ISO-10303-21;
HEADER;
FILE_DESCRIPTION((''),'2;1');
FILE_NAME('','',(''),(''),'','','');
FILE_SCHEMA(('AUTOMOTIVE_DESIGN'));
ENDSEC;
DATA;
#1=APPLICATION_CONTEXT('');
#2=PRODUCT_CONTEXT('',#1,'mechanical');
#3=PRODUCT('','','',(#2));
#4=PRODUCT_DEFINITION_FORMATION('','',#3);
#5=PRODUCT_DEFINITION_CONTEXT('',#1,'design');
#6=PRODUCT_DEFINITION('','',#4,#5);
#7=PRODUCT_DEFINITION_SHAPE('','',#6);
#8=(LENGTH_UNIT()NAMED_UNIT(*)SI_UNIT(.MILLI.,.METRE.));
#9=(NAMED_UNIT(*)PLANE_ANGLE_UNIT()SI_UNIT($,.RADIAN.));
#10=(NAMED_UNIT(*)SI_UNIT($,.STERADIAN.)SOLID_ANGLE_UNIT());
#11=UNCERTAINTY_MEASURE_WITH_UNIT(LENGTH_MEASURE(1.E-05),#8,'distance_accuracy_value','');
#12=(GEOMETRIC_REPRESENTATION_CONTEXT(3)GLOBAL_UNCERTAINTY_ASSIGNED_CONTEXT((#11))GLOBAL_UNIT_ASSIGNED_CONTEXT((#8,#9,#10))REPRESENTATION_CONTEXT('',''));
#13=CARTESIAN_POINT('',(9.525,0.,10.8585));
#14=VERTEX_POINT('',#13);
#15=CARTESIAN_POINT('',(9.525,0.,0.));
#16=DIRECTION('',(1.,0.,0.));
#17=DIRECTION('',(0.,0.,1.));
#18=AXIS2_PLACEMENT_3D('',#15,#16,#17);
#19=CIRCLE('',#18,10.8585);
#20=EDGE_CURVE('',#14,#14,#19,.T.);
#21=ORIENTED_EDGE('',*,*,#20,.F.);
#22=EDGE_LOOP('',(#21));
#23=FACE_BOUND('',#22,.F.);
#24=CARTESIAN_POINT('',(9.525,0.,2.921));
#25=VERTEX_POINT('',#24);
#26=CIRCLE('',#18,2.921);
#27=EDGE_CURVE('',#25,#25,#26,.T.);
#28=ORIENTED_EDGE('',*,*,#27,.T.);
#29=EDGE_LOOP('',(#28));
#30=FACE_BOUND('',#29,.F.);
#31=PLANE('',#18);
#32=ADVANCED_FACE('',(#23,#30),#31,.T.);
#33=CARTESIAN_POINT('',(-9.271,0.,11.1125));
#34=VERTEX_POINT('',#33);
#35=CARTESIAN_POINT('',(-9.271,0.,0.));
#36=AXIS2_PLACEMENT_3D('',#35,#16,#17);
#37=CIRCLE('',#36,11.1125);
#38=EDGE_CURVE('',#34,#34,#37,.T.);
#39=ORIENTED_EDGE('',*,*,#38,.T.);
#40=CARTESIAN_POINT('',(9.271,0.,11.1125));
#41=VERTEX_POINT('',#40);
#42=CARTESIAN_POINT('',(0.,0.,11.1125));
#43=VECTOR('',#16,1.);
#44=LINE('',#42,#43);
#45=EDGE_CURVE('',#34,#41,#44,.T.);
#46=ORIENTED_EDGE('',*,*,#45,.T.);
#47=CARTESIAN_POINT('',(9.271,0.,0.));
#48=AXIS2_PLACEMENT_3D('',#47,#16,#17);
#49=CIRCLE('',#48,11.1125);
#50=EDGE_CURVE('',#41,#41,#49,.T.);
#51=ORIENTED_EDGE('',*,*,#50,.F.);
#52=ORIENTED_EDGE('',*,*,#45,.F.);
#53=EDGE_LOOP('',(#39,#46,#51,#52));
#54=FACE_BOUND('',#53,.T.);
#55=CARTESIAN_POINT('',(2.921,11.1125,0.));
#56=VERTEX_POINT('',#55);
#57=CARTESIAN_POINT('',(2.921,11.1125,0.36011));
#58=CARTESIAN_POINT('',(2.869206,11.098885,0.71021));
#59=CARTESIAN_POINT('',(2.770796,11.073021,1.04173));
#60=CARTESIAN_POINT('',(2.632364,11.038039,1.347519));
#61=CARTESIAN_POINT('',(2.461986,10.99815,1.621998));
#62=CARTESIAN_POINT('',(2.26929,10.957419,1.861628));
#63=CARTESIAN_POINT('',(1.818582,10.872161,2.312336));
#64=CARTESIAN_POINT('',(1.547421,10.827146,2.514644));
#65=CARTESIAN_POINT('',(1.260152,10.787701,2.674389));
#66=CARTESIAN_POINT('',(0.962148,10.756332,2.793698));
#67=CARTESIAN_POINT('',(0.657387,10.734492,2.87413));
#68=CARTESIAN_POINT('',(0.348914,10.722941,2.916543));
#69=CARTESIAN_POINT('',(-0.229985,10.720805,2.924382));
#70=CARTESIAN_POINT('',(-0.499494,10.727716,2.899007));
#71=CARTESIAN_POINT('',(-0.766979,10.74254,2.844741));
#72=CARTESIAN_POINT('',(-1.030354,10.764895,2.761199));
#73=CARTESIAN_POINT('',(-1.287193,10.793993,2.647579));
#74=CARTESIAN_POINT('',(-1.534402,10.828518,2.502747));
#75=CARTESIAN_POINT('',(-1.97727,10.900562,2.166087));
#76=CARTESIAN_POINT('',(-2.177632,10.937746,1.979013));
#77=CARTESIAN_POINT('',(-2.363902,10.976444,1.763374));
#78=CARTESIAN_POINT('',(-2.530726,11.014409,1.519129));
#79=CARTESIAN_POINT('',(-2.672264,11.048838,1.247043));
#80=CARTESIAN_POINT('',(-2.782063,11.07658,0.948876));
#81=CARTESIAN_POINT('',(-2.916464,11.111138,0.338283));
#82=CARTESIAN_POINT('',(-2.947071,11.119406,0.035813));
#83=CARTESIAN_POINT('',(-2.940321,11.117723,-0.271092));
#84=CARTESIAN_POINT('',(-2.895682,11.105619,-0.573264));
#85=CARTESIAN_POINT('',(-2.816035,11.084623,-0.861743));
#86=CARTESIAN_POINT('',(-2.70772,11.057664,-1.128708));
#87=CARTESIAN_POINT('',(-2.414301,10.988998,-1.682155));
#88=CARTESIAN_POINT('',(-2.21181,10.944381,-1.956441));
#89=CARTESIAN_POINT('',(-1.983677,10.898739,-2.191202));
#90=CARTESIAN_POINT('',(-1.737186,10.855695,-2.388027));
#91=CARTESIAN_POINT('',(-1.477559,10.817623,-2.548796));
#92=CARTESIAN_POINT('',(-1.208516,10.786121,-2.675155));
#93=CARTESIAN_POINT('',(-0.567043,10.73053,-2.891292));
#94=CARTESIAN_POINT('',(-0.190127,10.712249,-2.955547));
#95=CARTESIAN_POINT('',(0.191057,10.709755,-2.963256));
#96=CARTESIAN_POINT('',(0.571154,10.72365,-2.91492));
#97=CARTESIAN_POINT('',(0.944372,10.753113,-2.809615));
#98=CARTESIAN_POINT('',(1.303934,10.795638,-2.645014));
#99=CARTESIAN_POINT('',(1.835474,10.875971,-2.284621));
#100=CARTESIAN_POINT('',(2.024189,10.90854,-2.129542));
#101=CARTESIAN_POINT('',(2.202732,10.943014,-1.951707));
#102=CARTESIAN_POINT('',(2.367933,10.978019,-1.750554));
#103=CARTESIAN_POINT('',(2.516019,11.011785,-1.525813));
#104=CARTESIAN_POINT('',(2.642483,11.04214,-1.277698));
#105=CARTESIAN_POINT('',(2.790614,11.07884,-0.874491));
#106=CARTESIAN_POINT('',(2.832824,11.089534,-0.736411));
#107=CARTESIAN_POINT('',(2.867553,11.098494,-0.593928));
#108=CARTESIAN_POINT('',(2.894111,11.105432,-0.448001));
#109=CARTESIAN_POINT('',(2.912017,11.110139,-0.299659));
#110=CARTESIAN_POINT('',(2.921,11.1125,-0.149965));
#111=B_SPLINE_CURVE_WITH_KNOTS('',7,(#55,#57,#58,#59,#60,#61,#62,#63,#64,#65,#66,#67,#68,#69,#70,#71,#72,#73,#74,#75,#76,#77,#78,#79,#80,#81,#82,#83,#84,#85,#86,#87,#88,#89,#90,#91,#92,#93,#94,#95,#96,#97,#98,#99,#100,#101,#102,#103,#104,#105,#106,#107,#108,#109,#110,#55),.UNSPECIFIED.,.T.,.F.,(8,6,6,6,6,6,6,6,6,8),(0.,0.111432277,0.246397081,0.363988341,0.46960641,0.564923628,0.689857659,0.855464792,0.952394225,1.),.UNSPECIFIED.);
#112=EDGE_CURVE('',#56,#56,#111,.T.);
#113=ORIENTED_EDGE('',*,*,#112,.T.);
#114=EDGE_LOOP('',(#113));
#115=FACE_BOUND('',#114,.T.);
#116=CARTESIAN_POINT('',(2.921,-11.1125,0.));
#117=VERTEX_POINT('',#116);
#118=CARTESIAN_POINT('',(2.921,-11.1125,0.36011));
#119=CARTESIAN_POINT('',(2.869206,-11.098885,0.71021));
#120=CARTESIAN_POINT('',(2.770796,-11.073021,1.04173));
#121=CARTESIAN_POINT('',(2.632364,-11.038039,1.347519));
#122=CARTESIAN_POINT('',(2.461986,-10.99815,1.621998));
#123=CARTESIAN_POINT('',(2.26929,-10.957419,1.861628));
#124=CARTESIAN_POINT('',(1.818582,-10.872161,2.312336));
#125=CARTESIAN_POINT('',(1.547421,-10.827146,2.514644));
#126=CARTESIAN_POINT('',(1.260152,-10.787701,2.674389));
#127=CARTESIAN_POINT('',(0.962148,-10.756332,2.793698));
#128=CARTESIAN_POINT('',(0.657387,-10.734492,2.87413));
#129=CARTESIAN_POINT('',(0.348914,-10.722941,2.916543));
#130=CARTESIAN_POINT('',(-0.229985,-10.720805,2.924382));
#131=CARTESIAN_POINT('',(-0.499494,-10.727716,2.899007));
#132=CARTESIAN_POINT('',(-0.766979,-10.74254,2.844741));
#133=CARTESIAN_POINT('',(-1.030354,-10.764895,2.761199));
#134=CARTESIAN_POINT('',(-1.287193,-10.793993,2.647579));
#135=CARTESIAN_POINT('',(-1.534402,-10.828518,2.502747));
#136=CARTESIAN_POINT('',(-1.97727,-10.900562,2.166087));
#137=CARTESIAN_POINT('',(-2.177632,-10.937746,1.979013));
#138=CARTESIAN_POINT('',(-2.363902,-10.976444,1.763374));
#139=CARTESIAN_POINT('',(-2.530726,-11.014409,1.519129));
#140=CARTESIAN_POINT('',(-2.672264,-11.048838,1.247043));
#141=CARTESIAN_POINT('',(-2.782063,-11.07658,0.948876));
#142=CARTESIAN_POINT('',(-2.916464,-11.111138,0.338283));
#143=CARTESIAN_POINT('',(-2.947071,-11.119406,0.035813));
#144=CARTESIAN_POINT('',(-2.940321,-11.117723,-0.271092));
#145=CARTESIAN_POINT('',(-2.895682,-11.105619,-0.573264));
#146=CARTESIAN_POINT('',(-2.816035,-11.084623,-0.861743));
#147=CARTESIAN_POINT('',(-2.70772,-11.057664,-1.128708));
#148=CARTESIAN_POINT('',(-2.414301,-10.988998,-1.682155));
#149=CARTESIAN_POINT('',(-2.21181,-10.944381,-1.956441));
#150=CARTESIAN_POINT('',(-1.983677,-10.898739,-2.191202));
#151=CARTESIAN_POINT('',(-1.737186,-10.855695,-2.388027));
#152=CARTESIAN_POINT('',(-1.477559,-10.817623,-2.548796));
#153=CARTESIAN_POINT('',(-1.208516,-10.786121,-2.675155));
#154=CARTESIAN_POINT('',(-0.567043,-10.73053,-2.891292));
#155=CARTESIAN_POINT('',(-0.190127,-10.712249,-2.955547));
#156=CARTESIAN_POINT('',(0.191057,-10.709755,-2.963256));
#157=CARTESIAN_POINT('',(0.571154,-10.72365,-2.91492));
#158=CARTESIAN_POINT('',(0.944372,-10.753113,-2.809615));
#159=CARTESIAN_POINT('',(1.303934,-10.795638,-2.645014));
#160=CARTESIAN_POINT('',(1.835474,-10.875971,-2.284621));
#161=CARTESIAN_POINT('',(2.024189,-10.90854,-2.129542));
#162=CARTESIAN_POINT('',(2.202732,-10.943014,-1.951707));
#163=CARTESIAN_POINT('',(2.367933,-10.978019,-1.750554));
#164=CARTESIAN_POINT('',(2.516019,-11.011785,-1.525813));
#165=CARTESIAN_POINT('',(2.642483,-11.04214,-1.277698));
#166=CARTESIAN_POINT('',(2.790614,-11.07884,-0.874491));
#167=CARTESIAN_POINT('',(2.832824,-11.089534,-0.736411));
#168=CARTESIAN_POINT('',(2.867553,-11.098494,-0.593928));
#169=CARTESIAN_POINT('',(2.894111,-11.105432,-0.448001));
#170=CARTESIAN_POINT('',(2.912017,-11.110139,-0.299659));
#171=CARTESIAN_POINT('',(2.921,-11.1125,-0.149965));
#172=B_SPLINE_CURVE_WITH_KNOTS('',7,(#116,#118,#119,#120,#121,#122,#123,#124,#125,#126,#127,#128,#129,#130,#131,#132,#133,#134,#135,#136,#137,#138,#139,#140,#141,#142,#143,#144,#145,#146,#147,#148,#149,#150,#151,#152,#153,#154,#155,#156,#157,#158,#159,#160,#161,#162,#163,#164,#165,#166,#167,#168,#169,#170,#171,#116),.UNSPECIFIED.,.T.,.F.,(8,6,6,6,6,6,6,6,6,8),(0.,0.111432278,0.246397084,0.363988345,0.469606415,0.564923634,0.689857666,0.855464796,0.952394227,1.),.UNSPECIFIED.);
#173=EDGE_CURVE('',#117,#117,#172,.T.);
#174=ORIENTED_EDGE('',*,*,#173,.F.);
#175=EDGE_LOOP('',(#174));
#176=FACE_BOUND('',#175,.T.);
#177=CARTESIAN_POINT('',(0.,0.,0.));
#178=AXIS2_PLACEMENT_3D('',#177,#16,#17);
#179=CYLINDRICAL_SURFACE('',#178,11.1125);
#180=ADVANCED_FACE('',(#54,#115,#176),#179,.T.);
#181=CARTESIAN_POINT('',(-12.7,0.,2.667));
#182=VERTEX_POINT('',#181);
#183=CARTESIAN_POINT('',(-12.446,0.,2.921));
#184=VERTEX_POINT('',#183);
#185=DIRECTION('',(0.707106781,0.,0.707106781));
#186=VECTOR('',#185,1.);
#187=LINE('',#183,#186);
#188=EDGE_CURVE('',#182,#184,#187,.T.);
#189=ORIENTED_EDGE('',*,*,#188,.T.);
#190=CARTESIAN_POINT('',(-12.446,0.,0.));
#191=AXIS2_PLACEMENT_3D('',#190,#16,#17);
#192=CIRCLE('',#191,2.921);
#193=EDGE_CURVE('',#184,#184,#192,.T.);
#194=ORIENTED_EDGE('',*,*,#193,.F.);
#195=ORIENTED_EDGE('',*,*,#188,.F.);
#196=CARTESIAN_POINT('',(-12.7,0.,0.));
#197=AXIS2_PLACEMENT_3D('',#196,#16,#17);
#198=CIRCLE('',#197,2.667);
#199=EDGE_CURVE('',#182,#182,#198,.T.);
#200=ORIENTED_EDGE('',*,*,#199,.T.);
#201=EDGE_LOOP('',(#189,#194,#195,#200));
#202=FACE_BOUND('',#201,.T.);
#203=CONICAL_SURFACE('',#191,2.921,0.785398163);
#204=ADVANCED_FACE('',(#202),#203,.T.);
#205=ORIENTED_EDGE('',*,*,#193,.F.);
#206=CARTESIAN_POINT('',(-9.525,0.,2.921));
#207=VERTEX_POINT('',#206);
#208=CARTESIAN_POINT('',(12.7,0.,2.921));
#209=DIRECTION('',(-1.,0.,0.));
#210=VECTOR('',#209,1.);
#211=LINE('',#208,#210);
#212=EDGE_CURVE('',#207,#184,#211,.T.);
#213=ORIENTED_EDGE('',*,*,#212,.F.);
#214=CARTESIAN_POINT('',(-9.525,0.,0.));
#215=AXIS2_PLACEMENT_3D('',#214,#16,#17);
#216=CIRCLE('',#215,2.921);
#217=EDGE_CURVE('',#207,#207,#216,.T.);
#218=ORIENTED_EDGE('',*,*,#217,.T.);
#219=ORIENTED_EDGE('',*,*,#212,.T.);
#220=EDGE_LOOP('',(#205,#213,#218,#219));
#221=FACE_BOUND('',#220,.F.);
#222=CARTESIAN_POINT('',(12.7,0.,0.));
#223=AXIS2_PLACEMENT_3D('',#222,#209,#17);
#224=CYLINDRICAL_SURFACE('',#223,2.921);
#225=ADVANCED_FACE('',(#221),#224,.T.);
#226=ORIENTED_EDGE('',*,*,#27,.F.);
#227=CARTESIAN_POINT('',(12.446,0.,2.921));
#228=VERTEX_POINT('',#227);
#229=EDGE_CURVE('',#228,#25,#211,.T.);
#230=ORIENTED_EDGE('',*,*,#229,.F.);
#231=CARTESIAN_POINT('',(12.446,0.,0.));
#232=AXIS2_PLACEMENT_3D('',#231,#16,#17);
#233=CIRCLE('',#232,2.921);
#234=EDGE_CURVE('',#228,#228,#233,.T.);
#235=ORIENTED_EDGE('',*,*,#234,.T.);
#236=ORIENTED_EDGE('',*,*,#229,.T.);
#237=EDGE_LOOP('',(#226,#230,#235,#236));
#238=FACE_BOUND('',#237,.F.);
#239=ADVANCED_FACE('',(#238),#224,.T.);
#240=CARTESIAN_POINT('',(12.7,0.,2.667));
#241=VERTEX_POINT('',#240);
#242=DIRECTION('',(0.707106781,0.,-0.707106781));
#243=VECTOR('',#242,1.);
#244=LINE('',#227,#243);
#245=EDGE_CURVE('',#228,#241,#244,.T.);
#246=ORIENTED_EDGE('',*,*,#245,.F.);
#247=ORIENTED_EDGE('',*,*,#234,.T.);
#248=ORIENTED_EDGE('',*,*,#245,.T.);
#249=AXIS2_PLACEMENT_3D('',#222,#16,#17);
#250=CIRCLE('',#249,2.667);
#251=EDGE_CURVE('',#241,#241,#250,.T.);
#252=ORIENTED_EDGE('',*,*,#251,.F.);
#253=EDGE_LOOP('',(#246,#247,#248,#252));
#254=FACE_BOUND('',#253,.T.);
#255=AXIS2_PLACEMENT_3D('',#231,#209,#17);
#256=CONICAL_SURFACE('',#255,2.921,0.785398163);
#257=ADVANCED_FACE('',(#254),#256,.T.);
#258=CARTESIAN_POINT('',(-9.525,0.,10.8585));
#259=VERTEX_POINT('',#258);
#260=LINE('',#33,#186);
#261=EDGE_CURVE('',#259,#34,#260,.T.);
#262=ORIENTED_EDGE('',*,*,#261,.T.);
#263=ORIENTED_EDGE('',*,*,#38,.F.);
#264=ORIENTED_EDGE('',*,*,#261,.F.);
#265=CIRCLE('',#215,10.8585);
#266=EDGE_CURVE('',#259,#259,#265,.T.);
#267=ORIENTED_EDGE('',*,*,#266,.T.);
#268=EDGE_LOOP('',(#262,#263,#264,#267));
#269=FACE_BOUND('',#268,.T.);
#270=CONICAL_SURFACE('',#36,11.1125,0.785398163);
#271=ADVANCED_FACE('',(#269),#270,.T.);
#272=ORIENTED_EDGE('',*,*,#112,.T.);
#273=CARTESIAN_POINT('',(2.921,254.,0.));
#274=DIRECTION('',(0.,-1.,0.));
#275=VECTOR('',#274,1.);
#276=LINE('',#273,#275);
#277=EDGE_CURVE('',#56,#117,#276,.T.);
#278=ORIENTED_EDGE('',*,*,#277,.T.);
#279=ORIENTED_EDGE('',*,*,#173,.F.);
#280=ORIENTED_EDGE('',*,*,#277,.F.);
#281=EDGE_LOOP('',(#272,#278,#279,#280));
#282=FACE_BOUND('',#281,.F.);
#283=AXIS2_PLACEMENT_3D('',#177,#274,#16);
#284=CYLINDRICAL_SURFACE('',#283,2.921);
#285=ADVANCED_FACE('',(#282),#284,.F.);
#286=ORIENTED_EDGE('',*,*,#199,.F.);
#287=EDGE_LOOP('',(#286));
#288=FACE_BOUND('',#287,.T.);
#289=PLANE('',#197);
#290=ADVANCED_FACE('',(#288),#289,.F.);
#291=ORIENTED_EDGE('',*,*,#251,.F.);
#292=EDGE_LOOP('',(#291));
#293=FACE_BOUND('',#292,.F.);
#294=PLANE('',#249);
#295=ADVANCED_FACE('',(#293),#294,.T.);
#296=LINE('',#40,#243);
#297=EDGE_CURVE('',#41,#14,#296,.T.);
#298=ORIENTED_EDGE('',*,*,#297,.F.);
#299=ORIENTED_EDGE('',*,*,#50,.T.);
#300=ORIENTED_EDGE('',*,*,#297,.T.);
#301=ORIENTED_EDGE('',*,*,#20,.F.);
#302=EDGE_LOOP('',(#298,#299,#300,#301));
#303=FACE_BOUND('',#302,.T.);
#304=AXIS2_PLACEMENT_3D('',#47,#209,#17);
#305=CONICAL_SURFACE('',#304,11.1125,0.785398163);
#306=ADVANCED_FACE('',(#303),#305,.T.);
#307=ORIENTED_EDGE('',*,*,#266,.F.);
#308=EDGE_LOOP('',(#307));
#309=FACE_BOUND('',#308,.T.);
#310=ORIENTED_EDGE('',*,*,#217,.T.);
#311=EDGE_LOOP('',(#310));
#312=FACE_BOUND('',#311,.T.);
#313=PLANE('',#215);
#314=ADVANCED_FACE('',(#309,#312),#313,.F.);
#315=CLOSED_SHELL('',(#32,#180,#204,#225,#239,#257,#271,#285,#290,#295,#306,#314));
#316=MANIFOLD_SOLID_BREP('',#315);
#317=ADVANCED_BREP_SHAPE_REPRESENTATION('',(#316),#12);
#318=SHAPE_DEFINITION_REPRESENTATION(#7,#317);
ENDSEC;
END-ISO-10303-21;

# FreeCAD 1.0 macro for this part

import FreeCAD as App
import Part
import Sketcher
Q = App.Units.Quantity


def edges_at(feature, points):
    """Names of the edges that pass closest to the given points."""
    edges = feature.Shape.Edges
    near = lambda p: min(range(len(edges)), key=lambda i: edges[i].distToShape(Part.Vertex(*p))[0])
    return sorted({f"Edge{near(p) + 1}" for p in points})

doc = App.newDocument("Part")
params = doc.addObject("Spreadsheet::Sheet", "Params")
for row, (alias, value) in enumerate([
    ("sketch1_width", "1 in"),
    ("sketch1_width2", "0.75 in"),
    ("sketch1_height", "0.115 in"),
    ("revolution_angle", "360 deg"),
    ("sketch2_diameter", "0.23 in"),
    ("pocket1_length", "20 in"),
    ("chamfer_size", "0.01 in"),
], start=1):
    params.set(f"A{row}", alias)
    params.set(f"B{row}", "=" + value)
    params.setAlias(f"B{row}", alias)

body = doc.addObject("PartDesign::Body", "Body")

sketch1 = body.newObject("Sketcher::SketchObject", "Sketch")
sketch1.AttachmentSupport = (doc.getObject("XZ_Plane"), [""])
sketch1.MapMode = "FlatFace"
sketch1.addGeometry(Part.LineSegment(App.Vector(-12.7, 2.9, 0), App.Vector(-12.7, 0, 0)), False)
sketch1.addGeometry(Part.LineSegment(App.Vector(-12.7, 0, 0), App.Vector(12.7, 0, 0)), False)
sketch1.addGeometry(Part.LineSegment(App.Vector(12.7, 0, 0), App.Vector(12.7, 2.9, 0)), False)
sketch1.addGeometry(Part.LineSegment(App.Vector(12.7, 2.9, 0), App.Vector(9.5, 2.9, 0)), False)
sketch1.addGeometry(Part.LineSegment(App.Vector(9.5, 2.9, 0), App.Vector(9.5, 11.1, 0)), False)
sketch1.addGeometry(Part.LineSegment(App.Vector(9.5, 11.1, 0), App.Vector(-9.5, 11.1, 0)), False)
sketch1.addGeometry(Part.LineSegment(App.Vector(-9.5, 11.1, 0), App.Vector(-9.5, 2.9, 0)), False)
sketch1.addGeometry(Part.LineSegment(App.Vector(-9.5, 2.9, 0), App.Vector(-12.7, 2.9, 0)), False)
sketch1.addConstraint(Sketcher.Constraint("Coincident", 0, 2, 1, 1))
sketch1.addConstraint(Sketcher.Constraint("Coincident", 1, 2, 2, 1))
sketch1.addConstraint(Sketcher.Constraint("Coincident", 2, 2, 3, 1))
sketch1.addConstraint(Sketcher.Constraint("Coincident", 3, 2, 4, 1))
sketch1.addConstraint(Sketcher.Constraint("Coincident", 4, 2, 5, 1))
sketch1.addConstraint(Sketcher.Constraint("Coincident", 5, 2, 6, 1))
sketch1.addConstraint(Sketcher.Constraint("Coincident", 6, 2, 7, 1))
sketch1.addConstraint(Sketcher.Constraint("Coincident", 7, 2, 0, 1))
sketch1.addConstraint(Sketcher.Constraint("Vertical", 0))
sketch1.addConstraint(Sketcher.Constraint("Horizontal", 1))
sketch1.addConstraint(Sketcher.Constraint("Vertical", 2))
sketch1.addConstraint(Sketcher.Constraint("Horizontal", 3))
sketch1.addConstraint(Sketcher.Constraint("Vertical", 4))
sketch1.addConstraint(Sketcher.Constraint("Horizontal", 5))
sketch1.addConstraint(Sketcher.Constraint("Vertical", 6))
sketch1.addConstraint(Sketcher.Constraint("Horizontal", 7))
sketch1.addConstraint(Sketcher.Constraint("Symmetric", 0, 2, 1, 2, -1, 1))
sketch1.addConstraint(Sketcher.Constraint("Symmetric", 3, 2, 6, 2, -2))
sketch1.addConstraint(Sketcher.Constraint("DistanceX", 1, 1, 1, 2, Q("1 in")))
sketch1.addConstraint(Sketcher.Constraint("DistanceX", 5, 2, 5, 1, Q("0.75 in")))
sketch1.addConstraint(Sketcher.Constraint("DistanceY", 0, 2, 0, 1, Q("0.115 in")))
sketch1.addConstraint(Sketcher.Constraint("DistanceY", 4, 1, 4, 2, Q("0.3225 in")))
sketch1.setExpression("Constraints[18]", "Params.sketch1_width")
sketch1.setExpression("Constraints[19]", "Params.sketch1_width2")
sketch1.setExpression("Constraints[20]", "Params.sketch1_height")
revolution = body.newObject("PartDesign::Revolution", "Revolution")
revolution.Profile = sketch1
revolution.ReferenceAxis = (sketch1, ["H_Axis"])
revolution.setExpression("Angle", "Params.revolution_angle")

sketch2 = body.newObject("Sketcher::SketchObject", "Sketch001")
sketch2.AttachmentSupport = (doc.getObject("XZ_Plane"), [""])
sketch2.MapMode = "FlatFace"
sketch2.addGeometry(Part.Circle(App.Vector(0, 0, 0), App.Vector(0, 0, 1), 2.9), False)
sketch2.addConstraint(Sketcher.Constraint("Coincident", 0, 3, -1, 1))
sketch2.addConstraint(Sketcher.Constraint("Diameter", 0, Q("0.23 in")))
sketch2.setExpression("Constraints[1]", "Params.sketch2_diameter")
pocket1 = body.newObject("PartDesign::Pocket", "Pocket")
pocket1.Profile = sketch2
pocket1.setExpression("Length", "Params.pocket1_length")
pocket1.Midplane = True
doc.recompute()

chamfer = body.newObject("PartDesign::Chamfer", "Chamfer")
chamfer.Base = (pocket1, edges_at(pocket1, [
    (-12.7, 0, -2.921),
    (-9.525, 0, -11.113),
    (9.525, 0, -11.113),
    (12.7, 0, -2.921),
]))
chamfer.setExpression("Size", "Params.chamfer_size")

doc.recompute()
